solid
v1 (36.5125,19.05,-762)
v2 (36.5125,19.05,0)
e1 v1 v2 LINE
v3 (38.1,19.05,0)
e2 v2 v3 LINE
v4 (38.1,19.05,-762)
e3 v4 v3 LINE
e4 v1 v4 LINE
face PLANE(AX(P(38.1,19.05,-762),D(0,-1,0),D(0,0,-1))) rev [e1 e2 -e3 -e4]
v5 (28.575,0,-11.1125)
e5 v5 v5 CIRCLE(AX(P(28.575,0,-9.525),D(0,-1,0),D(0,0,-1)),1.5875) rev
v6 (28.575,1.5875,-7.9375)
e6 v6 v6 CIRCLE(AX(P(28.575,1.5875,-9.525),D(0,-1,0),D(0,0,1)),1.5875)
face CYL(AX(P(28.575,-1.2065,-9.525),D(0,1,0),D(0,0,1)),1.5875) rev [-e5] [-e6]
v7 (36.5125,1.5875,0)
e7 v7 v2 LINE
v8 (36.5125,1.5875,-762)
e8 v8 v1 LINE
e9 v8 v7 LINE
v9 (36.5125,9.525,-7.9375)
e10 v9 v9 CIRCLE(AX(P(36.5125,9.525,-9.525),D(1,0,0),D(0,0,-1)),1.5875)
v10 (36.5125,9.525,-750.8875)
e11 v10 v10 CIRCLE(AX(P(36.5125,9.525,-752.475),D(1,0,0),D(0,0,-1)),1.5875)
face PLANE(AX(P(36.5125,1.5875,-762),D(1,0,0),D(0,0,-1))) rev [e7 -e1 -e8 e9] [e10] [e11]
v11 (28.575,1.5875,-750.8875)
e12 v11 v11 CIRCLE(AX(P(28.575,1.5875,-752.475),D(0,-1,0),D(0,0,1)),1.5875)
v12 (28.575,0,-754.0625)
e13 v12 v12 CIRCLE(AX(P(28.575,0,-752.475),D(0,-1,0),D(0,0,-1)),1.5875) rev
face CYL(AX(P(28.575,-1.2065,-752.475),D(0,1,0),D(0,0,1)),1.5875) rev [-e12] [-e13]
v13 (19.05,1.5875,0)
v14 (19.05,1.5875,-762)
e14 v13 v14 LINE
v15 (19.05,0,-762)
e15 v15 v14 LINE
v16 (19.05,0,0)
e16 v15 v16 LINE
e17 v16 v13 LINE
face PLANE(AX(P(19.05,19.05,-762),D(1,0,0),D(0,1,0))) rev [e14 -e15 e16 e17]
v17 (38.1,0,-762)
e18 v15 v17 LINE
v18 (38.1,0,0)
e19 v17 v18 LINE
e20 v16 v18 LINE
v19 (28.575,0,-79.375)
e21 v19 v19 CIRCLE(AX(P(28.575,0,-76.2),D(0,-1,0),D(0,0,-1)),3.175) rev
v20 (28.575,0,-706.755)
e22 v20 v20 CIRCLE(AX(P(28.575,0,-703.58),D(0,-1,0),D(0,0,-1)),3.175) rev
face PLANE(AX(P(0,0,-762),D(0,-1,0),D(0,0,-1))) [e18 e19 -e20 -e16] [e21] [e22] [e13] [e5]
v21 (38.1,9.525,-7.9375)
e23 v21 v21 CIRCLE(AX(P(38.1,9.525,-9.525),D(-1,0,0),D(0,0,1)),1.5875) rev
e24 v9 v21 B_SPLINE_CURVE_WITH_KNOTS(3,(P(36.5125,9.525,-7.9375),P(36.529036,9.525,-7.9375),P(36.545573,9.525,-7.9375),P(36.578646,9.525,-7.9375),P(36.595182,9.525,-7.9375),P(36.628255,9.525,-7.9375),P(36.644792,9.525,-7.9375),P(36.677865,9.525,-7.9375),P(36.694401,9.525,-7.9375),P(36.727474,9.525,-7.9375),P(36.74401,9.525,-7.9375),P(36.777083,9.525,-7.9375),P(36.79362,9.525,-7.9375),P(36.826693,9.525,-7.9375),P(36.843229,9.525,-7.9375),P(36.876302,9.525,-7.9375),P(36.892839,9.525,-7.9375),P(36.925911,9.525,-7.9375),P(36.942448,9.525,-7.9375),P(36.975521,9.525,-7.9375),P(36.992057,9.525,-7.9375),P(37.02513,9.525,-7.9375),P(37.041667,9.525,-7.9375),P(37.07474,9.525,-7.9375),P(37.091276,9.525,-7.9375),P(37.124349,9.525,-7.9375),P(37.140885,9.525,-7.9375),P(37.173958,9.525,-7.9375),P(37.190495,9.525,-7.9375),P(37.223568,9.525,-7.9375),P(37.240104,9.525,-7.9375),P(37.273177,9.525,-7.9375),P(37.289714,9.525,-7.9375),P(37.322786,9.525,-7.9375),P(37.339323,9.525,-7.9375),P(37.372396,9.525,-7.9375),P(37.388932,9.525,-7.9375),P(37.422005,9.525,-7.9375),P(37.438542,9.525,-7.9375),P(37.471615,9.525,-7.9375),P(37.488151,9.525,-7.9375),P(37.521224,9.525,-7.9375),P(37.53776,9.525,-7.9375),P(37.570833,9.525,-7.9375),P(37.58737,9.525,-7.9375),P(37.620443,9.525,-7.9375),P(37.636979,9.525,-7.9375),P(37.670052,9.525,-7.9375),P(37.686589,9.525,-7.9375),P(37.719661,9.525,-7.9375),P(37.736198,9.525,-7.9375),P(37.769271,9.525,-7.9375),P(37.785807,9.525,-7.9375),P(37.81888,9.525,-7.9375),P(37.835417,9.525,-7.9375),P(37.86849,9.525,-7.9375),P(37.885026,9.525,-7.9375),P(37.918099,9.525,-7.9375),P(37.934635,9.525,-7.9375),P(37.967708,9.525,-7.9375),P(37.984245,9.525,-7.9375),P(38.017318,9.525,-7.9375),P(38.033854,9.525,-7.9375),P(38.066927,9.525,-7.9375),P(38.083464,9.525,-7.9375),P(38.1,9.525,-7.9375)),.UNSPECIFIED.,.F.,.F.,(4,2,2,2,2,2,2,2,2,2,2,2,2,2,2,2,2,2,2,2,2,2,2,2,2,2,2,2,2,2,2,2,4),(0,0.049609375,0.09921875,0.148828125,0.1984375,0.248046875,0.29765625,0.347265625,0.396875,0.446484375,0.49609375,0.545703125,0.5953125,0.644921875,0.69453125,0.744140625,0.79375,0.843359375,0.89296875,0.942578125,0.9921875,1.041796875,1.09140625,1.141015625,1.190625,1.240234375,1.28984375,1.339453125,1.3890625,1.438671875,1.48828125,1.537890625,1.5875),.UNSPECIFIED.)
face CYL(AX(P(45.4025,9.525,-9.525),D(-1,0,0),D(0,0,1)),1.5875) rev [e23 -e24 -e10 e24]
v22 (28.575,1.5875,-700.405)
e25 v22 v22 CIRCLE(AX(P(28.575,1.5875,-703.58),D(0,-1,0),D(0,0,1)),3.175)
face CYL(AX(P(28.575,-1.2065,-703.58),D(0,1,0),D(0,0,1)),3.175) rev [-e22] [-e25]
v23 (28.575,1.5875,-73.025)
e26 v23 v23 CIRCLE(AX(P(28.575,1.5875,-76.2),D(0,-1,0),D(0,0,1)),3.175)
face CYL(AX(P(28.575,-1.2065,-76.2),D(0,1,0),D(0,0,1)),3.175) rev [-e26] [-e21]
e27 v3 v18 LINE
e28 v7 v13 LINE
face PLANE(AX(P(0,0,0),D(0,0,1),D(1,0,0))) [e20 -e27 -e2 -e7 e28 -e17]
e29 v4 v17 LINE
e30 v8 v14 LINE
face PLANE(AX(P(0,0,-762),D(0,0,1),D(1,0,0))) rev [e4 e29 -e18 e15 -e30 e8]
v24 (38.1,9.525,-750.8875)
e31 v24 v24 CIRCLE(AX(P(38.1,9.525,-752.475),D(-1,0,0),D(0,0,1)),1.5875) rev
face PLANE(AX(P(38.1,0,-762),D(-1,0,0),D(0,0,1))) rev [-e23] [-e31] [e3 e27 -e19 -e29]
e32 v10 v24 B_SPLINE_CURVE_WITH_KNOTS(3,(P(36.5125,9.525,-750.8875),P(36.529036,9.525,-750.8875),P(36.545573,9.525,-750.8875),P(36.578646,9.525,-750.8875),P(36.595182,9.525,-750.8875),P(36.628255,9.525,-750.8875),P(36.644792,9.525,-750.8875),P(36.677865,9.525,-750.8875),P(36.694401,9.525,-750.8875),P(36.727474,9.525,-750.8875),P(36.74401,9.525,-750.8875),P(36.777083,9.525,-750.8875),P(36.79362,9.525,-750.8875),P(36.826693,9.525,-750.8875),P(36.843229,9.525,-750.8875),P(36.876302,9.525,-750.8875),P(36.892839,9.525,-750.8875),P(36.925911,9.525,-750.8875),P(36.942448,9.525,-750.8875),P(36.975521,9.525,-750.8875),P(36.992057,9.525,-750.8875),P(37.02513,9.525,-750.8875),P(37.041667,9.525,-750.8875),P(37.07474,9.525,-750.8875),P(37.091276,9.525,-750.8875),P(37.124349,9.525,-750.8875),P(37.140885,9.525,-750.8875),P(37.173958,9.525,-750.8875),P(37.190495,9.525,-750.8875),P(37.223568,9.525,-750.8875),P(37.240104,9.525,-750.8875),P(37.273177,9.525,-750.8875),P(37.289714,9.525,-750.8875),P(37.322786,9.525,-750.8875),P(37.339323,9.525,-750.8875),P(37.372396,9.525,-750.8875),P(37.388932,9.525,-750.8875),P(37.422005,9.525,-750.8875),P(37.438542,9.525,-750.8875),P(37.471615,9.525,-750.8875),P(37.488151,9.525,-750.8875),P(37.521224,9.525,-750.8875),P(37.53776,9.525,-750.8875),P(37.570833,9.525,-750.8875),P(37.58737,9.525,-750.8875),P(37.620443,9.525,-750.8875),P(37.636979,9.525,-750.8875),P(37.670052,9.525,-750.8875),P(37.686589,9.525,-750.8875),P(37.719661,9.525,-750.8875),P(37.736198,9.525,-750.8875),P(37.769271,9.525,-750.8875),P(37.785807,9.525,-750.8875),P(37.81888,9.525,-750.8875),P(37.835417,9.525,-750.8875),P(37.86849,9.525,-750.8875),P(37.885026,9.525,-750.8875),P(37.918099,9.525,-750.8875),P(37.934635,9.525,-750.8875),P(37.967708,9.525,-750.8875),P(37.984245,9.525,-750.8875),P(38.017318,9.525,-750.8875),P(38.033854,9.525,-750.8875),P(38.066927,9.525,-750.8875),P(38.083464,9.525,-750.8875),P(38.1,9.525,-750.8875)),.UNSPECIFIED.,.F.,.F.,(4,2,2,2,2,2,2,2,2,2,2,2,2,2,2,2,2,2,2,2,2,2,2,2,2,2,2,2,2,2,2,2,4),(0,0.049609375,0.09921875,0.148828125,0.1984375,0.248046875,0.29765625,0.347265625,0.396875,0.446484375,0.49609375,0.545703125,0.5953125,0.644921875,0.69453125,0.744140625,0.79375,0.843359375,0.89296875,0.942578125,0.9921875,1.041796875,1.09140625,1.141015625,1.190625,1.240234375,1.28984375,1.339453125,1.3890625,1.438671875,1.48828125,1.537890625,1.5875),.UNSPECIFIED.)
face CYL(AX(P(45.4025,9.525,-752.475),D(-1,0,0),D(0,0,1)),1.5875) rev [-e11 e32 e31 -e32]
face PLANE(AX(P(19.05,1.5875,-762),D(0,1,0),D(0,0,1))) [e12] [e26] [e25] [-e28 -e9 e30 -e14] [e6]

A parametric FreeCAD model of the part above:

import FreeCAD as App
import Part
import Sketcher
from FreeCAD import Vector
Q = App.Units.Quantity

doc = App.newDocument("Part")
body = doc.addObject("PartDesign::Body", "Body")

sketch1 = doc.addObject("Sketcher::SketchObject", "Sketch")
body.addObject(sketch1)
sketch1.AttachmentSupport = (doc.XY_Plane, [""])
sketch1.MapMode = "FlatFace"
sketch1.addGeometry(Part.LineSegment(Vector(0, 19.05, 0), Vector(0, 0, 0)), False)
sketch1.addGeometry(Part.LineSegment(Vector(0, 0, 0), Vector(19.05, 0, 0)), False)
sketch1.addGeometry(Part.LineSegment(Vector(19.05, 0, 0), Vector(19.05, 1.5875, 0)), False)
sketch1.addGeometry(Part.LineSegment(Vector(19.05, 1.5875, 0), Vector(1.5875, 1.5875, 0)), False)
sketch1.addGeometry(Part.LineSegment(Vector(1.5875, 1.5875, 0), Vector(1.5875, 19.05, 0)), False)
sketch1.addGeometry(Part.LineSegment(Vector(1.5875, 19.05, 0), Vector(0, 19.05, 0)), False)
sketch1.addConstraint(Sketcher.Constraint("Coincident", 0, 2, 1, 1))
sketch1.addConstraint(Sketcher.Constraint("Coincident", 1, 2, 2, 1))
sketch1.addConstraint(Sketcher.Constraint("Coincident", 2, 2, 3, 1))
sketch1.addConstraint(Sketcher.Constraint("Coincident", 3, 2, 4, 1))
sketch1.addConstraint(Sketcher.Constraint("Coincident", 4, 2, 5, 1))
sketch1.addConstraint(Sketcher.Constraint("Coincident", 5, 2, 0, 1))
sketch1.addConstraint(Sketcher.Constraint("Vertical", 0))
sketch1.addConstraint(Sketcher.Constraint("Horizontal", 1))
sketch1.addConstraint(Sketcher.Constraint("Vertical", 2))
sketch1.addConstraint(Sketcher.Constraint("Horizontal", 3))
sketch1.addConstraint(Sketcher.Constraint("Vertical", 4))
sketch1.addConstraint(Sketcher.Constraint("Horizontal", 5))
sketch1.addConstraint(Sketcher.Constraint("Coincident", 0, 2, -1, 1))
sketch1.addConstraint(Sketcher.Constraint("Equal", 1, 0))
sketch1.addConstraint(Sketcher.Constraint("Equal", 5, 2))
sketch1.addConstraint(Sketcher.Constraint("DistanceX", 1, 1, 1, 2, Q("0.75 in")))
sketch1.addConstraint(Sketcher.Constraint("DistanceX", 3, 2, 3, 1, Q("0.6875 in")))
pad1 = doc.addObject("PartDesign::Pad", "Pad")
body.addObject(pad1)
pad1.Profile = sketch1
pad1.Length = Q("30 in")
pad1.Reversed = True

sketch2 = doc.addObject("Sketcher::SketchObject", "Sketch001")
body.addObject(sketch2)
sketch2.AttachmentSupport = (doc.XZ_Plane, [""])
sketch2.MapMode = "FlatFace"
sketch2.AttachmentOffset = App.Placement(Vector(0, 0, -0.0625 * 25.4), App.Rotation())
sketch2.addGeometry(Part.Circle(Vector(9.525, -9.525, 0), Vector(0, 0, 1), 1.5875), False)
sketch2.addGeometry(Part.Circle(Vector(9.525, -752.475, 0), Vector(0, 0, 1), 1.5875), False)
sketch2.addGeometry(Part.Circle(Vector(9.525, -76.2, 0), Vector(0, 0, 1), 3.175), False)
sketch2.addGeometry(Part.Circle(Vector(9.525, -703.58, 0), Vector(0, 0, 1), 3.175), False)
sketch2.addConstraint(Sketcher.Constraint("Equal", 0, 1))
sketch2.addConstraint(Sketcher.Constraint("Equal", 2, 3))
sketch2.addConstraint(Sketcher.Constraint("Vertical", 0, 3, 1, 3))
sketch2.addConstraint(Sketcher.Constraint("Vertical", 1, 3, 2, 3))
sketch2.addConstraint(Sketcher.Constraint("Vertical", 2, 3, 3, 3))
sketch2.addConstraint(Sketcher.Constraint("Diameter", 2, Q("0.25 in")))
sketch2.addConstraint(Sketcher.Constraint("Diameter", 0, Q("0.125 in")))
sketch2.addConstraint(Sketcher.Constraint("DistanceY", 2, 3, -1, 1, Q("3 in")))
sketch2.addConstraint(Sketcher.Constraint("DistanceY", 3, 3, -1, 1, Q("27.7 in")))
sketch2.addConstraint(Sketcher.Constraint("DistanceY", 1, 3, 0, 3, Q("29.25 in")))
sketch2.addConstraint(Sketcher.Constraint("DistanceX", -1, 1, 0, 3, Q("0.375 in")))
sketch2.addConstraint(Sketcher.Constraint("DistanceY", 0, 3, -1, 1, Q("0.375 in")))
pocket1 = doc.addObject("PartDesign::Pocket", "Pocket")
body.addObject(pocket1)
pocket1.Profile = sketch2
pocket1.Length = Q("0.11 in")
pocket1.Reversed = True

sketch3 = doc.addObject("Sketcher::SketchObject", "Sketch002")
body.addObject(sketch3)
sketch3.AttachmentSupport = (doc.YZ_Plane, [""])
sketch3.MapMode = "FlatFace"
sketch3.AttachmentOffset = App.Placement(Vector(0, 0, 0.0625 * 25.4), App.Rotation())
sketch3.addGeometry(Part.Circle(Vector(9.525, -9.525, 0), Vector(0, 0, 1), 1.5875), False)
sketch3.addGeometry(Part.Circle(Vector(9.525, -752.475, 0), Vector(0, 0, 1), 1.5875), False)
sketch3.addConstraint(Sketcher.Constraint("Equal", 0, 1))
sketch3.addConstraint(Sketcher.Constraint("Vertical", 0, 3, 1, 3))
sketch3.addConstraint(Sketcher.Constraint("Diameter", 0, Q("0.125 in")))
sketch3.addConstraint(Sketcher.Constraint("DistanceY", 1, 3, 0, 3, Q("29.25 in")))
sketch3.addConstraint(Sketcher.Constraint("DistanceX", -1, 1, 0, 3, Q("0.375 in")))
sketch3.addConstraint(Sketcher.Constraint("DistanceY", 0, 3, -1, 1, Q("0.375 in")))
pocket2 = doc.addObject("PartDesign::Pocket", "Pocket001")
body.addObject(pocket2)
pocket2.Profile = sketch3
pocket2.Length = Q("0.35 in")
doc.recompute()

datumplane = doc.addObject("PartDesign::Plane", "DatumPlane")
body.addObject(datumplane)
datumplane.AttachmentSupport = (doc.YZ_Plane, [""])
datumplane.MapMode = "FlatFace"
datumplane.AttachmentOffset = App.Placement(Vector(0, 0, 0.75 * 25.4), App.Rotation())
mirrored = doc.addObject("PartDesign::Mirrored", "Mirrored")
body.addObject(mirrored)
mirrored.Originals = [pad1, pocket1, pocket2]
mirrored.MirrorPlane = (datumplane, [""])
body.Tip = mirrored

sketch4 = doc.addObject("Sketcher::SketchObject", "Sketch003")
body.addObject(sketch4)
sketch4.AttachmentSupport = (doc.XY_Plane, [""])
sketch4.MapMode = "FlatFace"
sketch4.addGeometry(Part.LineSegment(Vector(0, 19.05, 0), Vector(0, 0, 0)), False)
sketch4.addGeometry(Part.LineSegment(Vector(0, 0, 0), Vector(19.05, 0, 0)), False)
sketch4.addGeometry(Part.LineSegment(Vector(19.05, 0, 0), Vector(19.05, 19.05, 0)), False)
sketch4.addGeometry(Part.LineSegment(Vector(19.05, 19.05, 0), Vector(0, 19.05, 0)), False)
sketch4.addConstraint(Sketcher.Constraint("Coincident", 0, 2, 1, 1))
sketch4.addConstraint(Sketcher.Constraint("Coincident", 1, 2, 2, 1))
sketch4.addConstraint(Sketcher.Constraint("Coincident", 2, 2, 3, 1))
sketch4.addConstraint(Sketcher.Constraint("Coincident", 3, 2, 0, 1))
sketch4.addConstraint(Sketcher.Constraint("Vertical", 0))
sketch4.addConstraint(Sketcher.Constraint("Horizontal", 1))
sketch4.addConstraint(Sketcher.Constraint("Vertical", 2))
sketch4.addConstraint(Sketcher.Constraint("Horizontal", 3))
sketch4.addConstraint(Sketcher.Constraint("Coincident", 0, 2, -1, 1))
sketch4.addConstraint(Sketcher.Constraint("Equal", 3, 0))
sketch4.addConstraint(Sketcher.Constraint("DistanceX", 1, 1, 1, 2, Q("0.75 in")))
pocket3 = doc.addObject("PartDesign::Pocket", "Pocket002")
body.addObject(pocket3)
pocket3.Profile = sketch4
pocket3.Type = "ThroughAll"

doc.recompute()
